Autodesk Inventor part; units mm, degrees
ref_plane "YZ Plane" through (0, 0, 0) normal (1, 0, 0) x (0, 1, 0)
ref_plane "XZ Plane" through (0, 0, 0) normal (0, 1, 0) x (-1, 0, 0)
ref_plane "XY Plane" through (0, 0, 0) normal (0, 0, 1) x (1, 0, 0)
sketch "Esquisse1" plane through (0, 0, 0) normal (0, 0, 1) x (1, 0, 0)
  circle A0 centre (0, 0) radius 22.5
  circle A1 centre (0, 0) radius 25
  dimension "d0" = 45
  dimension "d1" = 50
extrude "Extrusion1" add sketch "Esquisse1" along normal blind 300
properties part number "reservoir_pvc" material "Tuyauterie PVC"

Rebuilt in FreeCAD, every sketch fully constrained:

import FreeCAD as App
import Part
import Sketcher
from FreeCAD import Vector
Q = App.Units.Quantity

doc = App.newDocument("Part")
params = doc.addObject("Spreadsheet::Sheet", "Params")
for row, (alias, value) in enumerate([
    ("sketch1_diameter", "50 mm"),
    ("sketch1_diameter2", "45 mm"),
    ("pad1_length", "300 mm"),
], start=1):
    params.set(f"A{row}", alias)
    params.set(f"B{row}", "=" + value)
    params.setAlias(f"B{row}", alias)

body = doc.addObject("PartDesign::Body", "Body")

# Sketch on XY plane
sketch1 = body.newObject("Sketcher::SketchObject", "Sketch")
sketch1.AttachmentSupport = (doc.getObject("XY_Plane"), [""])
sketch1.MapMode = "FlatFace"
sketch1.addGeometry(Part.Circle(Vector(0, 0, 0), Vector(0, 0, 1), 25), False)
sketch1.addGeometry(Part.Circle(Vector(0, 0, 0), Vector(0, 0, 1), 22.5), False)
sketch1.addConstraint(Sketcher.Constraint("Coincident", 0, 3, -1, 1))
sketch1.addConstraint(Sketcher.Constraint("Coincident", 1, 3, -1, 1))
sketch1.addConstraint(Sketcher.Constraint("Diameter", 0, Q("50 mm")))
sketch1.addConstraint(Sketcher.Constraint("Diameter", 1, Q("45 mm")))
sketch1.setExpression("Constraints[2]", "Params.sketch1_diameter")
sketch1.setExpression("Constraints[3]", "Params.sketch1_diameter2")
pad1 = body.newObject("PartDesign::Pad", "Pad")
pad1.Profile = sketch1
pad1.setExpression("Length", "Params.pad1_length")

doc.recompute()
